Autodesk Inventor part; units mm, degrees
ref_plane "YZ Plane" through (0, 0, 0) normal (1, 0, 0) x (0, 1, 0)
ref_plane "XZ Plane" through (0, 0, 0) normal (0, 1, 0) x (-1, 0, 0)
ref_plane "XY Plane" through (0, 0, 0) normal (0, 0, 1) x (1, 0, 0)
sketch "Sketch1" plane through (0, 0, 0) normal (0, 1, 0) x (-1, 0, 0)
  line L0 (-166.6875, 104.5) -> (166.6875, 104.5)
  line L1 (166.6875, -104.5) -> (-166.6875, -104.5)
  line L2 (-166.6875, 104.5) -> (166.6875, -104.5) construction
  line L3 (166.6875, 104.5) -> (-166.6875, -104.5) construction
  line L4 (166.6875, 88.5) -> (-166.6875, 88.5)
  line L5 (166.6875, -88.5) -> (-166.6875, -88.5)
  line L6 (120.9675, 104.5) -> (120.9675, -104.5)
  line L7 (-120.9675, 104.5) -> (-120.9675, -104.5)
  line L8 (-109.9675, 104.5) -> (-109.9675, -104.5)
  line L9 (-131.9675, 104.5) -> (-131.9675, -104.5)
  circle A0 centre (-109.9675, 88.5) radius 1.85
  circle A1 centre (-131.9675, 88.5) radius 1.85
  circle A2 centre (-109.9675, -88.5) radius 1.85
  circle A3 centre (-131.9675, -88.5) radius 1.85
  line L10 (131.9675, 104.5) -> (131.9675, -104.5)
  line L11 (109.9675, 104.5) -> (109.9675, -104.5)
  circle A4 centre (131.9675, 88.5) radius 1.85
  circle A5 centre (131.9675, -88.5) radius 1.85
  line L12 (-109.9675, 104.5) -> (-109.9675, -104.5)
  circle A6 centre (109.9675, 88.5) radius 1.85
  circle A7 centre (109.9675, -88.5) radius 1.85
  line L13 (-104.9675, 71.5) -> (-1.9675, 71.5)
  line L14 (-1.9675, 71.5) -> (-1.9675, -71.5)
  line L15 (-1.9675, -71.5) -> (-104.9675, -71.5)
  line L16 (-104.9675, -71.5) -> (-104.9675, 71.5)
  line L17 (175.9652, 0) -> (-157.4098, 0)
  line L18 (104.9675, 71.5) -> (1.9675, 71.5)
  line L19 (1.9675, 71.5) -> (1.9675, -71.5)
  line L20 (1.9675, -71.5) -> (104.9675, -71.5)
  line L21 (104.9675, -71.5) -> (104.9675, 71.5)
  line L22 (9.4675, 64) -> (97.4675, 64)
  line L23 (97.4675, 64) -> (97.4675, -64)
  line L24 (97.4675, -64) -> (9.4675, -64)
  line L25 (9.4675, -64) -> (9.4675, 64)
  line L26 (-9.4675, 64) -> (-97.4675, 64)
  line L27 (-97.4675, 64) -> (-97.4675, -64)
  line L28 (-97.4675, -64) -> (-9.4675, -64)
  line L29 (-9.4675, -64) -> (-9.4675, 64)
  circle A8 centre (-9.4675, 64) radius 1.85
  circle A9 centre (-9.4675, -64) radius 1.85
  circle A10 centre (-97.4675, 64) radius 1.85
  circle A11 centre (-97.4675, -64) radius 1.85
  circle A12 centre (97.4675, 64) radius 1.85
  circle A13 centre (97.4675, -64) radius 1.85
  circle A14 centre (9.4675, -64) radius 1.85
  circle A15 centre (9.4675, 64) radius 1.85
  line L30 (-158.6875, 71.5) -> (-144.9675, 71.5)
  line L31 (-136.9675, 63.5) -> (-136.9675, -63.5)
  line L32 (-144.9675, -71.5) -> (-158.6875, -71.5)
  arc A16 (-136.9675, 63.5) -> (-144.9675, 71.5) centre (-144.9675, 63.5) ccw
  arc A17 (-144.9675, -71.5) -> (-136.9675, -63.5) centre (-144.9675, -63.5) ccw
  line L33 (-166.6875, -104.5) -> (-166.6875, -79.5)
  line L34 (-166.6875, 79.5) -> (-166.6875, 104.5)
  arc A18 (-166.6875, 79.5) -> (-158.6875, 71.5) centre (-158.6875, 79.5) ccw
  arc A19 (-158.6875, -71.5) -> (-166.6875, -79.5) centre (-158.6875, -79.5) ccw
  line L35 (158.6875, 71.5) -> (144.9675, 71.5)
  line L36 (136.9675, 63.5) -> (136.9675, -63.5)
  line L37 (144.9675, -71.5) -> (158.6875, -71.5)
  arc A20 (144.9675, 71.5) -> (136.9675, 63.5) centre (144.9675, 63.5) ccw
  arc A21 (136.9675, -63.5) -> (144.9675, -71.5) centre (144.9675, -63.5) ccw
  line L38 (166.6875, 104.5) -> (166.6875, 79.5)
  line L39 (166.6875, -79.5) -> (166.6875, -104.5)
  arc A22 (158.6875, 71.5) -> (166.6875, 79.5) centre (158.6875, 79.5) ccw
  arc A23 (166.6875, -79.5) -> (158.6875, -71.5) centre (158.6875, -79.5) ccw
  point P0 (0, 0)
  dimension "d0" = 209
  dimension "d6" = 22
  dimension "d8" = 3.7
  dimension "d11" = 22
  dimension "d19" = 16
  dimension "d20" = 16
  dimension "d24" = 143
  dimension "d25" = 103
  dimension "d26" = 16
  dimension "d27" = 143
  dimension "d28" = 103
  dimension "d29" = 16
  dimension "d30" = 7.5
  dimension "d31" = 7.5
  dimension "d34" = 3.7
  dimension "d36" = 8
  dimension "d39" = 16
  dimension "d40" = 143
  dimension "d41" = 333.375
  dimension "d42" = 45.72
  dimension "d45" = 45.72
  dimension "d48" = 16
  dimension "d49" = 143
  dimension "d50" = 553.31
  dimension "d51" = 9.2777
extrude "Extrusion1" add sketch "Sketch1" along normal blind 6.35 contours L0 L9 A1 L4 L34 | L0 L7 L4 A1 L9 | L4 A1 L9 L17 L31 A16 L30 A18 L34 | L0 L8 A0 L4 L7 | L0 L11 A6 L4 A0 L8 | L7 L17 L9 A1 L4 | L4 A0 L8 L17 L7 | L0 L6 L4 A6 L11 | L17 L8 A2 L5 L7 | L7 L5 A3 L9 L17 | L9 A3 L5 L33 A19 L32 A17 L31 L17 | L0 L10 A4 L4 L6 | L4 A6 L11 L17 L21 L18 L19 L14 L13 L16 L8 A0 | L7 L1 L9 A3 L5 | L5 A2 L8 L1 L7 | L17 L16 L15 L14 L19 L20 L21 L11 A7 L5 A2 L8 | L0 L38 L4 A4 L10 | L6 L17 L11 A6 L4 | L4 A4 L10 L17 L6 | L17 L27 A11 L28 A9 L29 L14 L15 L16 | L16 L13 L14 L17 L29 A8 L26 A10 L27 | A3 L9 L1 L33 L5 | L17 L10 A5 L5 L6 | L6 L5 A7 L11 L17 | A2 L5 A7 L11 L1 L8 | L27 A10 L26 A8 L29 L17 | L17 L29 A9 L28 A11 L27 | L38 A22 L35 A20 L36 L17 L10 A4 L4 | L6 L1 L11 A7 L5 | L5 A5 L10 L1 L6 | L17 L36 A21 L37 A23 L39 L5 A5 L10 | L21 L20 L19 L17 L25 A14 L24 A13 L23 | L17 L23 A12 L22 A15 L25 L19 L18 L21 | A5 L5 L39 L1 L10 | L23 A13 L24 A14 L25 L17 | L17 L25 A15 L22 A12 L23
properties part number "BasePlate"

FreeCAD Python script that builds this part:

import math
import FreeCAD as App
import Part
import Sketcher
from FreeCAD import Vector
Q = App.Units.Quantity

doc = App.newDocument("Part")
body = doc.addObject("PartDesign::Body", "Body")

# Sketch on XZ plane
sketch1 = doc.addObject("Sketcher::SketchObject", "Sketch")
body.addObject(sketch1)
sketch1.AttachmentSupport = (doc.XZ_Plane, [""])
sketch1.MapMode = "FlatFace"
sketch1.addGeometry(Part.LineSegment(Vector(166.7, 104.5, 0), Vector(166.7, 79.5, 0)), False)
sketch1.addGeometry(Part.ArcOfCircle(Part.Circle(Vector(158.7, 79.5, 0), Vector(0, 0, 1), 8), math.radians(-90), math.radians(0)), False)
sketch1.addGeometry(Part.LineSegment(Vector(158.7, 71.5, 0), Vector(145, 71.5, 0)), False)
sketch1.addGeometry(Part.ArcOfCircle(Part.Circle(Vector(145, 63.5, 0), Vector(0, 0, 1), 8), math.radians(90), math.radians(180)), False)
sketch1.addGeometry(Part.LineSegment(Vector(137, 63.5, 0), Vector(137, -63.5, 0)), False)
sketch1.addGeometry(Part.ArcOfCircle(Part.Circle(Vector(145, -63.5, 0), Vector(0, 0, 1), 8), math.radians(180), math.radians(270)), False)
sketch1.addGeometry(Part.LineSegment(Vector(145, -71.5, 0), Vector(158.7, -71.5, 0)), False)
sketch1.addGeometry(Part.ArcOfCircle(Part.Circle(Vector(158.7, -79.5, 0), Vector(0, 0, 1), 8), math.radians(0), math.radians(90)), False)
sketch1.addGeometry(Part.LineSegment(Vector(166.7, -79.5, 0), Vector(166.7, -104.5, 0)), False)
sketch1.addGeometry(Part.LineSegment(Vector(166.7, -104.5, 0), Vector(-166.7, -104.5, 0)), False)
sketch1.addGeometry(Part.LineSegment(Vector(-166.7, -104.5, 0), Vector(-166.7, -79.5, 0)), False)
sketch1.addGeometry(Part.ArcOfCircle(Part.Circle(Vector(-158.7, -79.5, 0), Vector(0, 0, 1), 8), math.radians(90), math.radians(180)), False)
sketch1.addGeometry(Part.LineSegment(Vector(-158.7, -71.5, 0), Vector(-145, -71.5, 0)), False)
sketch1.addGeometry(Part.ArcOfCircle(Part.Circle(Vector(-145, -63.5, 0), Vector(0, 0, 1), 8), math.radians(-90), math.radians(0)), False)
sketch1.addGeometry(Part.LineSegment(Vector(-137, -63.5, 0), Vector(-137, 63.5, 0)), False)
sketch1.addGeometry(Part.ArcOfCircle(Part.Circle(Vector(-145, 63.5, 0), Vector(0, 0, 1), 8), math.radians(0), math.radians(90)), False)
sketch1.addGeometry(Part.LineSegment(Vector(-145, 71.5, 0), Vector(-158.7, 71.5, 0)), False)
sketch1.addGeometry(Part.ArcOfCircle(Part.Circle(Vector(-158.7, 79.5, 0), Vector(0, 0, 1), 8), math.radians(180), math.radians(270)), False)
sketch1.addGeometry(Part.LineSegment(Vector(-166.7, 79.5, 0), Vector(-166.7, 104.5, 0)), False)
sketch1.addGeometry(Part.LineSegment(Vector(-166.7, 104.5, 0), Vector(166.7, 104.5, 0)), False)
sketch1.addGeometry(Part.Circle(Vector(132, 88.5, 0), Vector(0, 0, 1), 1.9), False)
sketch1.addGeometry(Part.Circle(Vector(110, 88.5, 0), Vector(0, 0, 1), 1.9), False)
sketch1.addGeometry(Part.Circle(Vector(132, -88.5, 0), Vector(0, 0, 1), 1.9), False)
sketch1.addGeometry(Part.Circle(Vector(-110, 88.5, 0), Vector(0, 0, 1), 1.9), False)
sketch1.addGeometry(Part.Circle(Vector(110, -88.5, 0), Vector(0, 0, 1), 1.9), False)
sketch1.addGeometry(Part.Circle(Vector(-132, 88.5, 0), Vector(0, 0, 1), 1.9), False)
sketch1.addGeometry(Part.Circle(Vector(-110, -88.5, 0), Vector(0, 0, 1), 1.9), False)
sketch1.addGeometry(Part.Circle(Vector(-97.5, 64, 0), Vector(0, 0, 1), 1.9), False)
sketch1.addGeometry(Part.Circle(Vector(-9.5, 64, 0), Vector(0, 0, 1), 1.9), False)
sketch1.addGeometry(Part.Circle(Vector(97.5, 64, 0), Vector(0, 0, 1), 1.9), False)
sketch1.addGeometry(Part.Circle(Vector(9.5, 64, 0), Vector(0, 0, 1), 1.9), False)
sketch1.addGeometry(Part.Circle(Vector(97.5, -64, 0), Vector(0, 0, 1), 1.9), False)
sketch1.addGeometry(Part.Circle(Vector(9.5, -64, 0), Vector(0, 0, 1), 1.9), False)
sketch1.addGeometry(Part.Circle(Vector(-97.5, -64, 0), Vector(0, 0, 1), 1.9), False)
sketch1.addGeometry(Part.Circle(Vector(-9.5, -64, 0), Vector(0, 0, 1), 1.9), False)
sketch1.addGeometry(Part.Circle(Vector(-132, -88.5, 0), Vector(0, 0, 1), 1.9), False)
sketch1.addConstraint(Sketcher.Constraint("Tangent", 0, 2, 1, 2))
sketch1.addConstraint(Sketcher.Constraint("Tangent", 1, 1, 2, 1))
sketch1.addConstraint(Sketcher.Constraint("Tangent", 2, 2, 3, 1))
sketch1.addConstraint(Sketcher.Constraint("Tangent", 3, 2, 4, 1))
sketch1.addConstraint(Sketcher.Constraint("Tangent", 4, 2, 5, 1))
sketch1.addConstraint(Sketcher.Constraint("Tangent", 5, 2, 6, 1))
sketch1.addConstraint(Sketcher.Constraint("Tangent", 6, 2, 7, 2))
sketch1.addConstraint(Sketcher.Constraint("Tangent", 7, 1, 8, 1))
sketch1.addConstraint(Sketcher.Constraint("Coincident", 8, 2, 9, 1))
sketch1.addConstraint(Sketcher.Constraint("Coincident", 9, 2, 10, 1))
sketch1.addConstraint(Sketcher.Constraint("Tangent", 10, 2, 11, 2))
sketch1.addConstraint(Sketcher.Constraint("Tangent", 11, 1, 12, 1))
sketch1.addConstraint(Sketcher.Constraint("Tangent", 12, 2, 13, 1))
sketch1.addConstraint(Sketcher.Constraint("Tangent", 13, 2, 14, 1))
sketch1.addConstraint(Sketcher.Constraint("Tangent", 14, 2, 15, 1))
sketch1.addConstraint(Sketcher.Constraint("Tangent", 15, 2, 16, 1))
sketch1.addConstraint(Sketcher.Constraint("Tangent", 16, 2, 17, 2))
sketch1.addConstraint(Sketcher.Constraint("Tangent", 17, 1, 18, 1))
sketch1.addConstraint(Sketcher.Constraint("Coincident", 18, 2, 19, 1))
sketch1.addConstraint(Sketcher.Constraint("Coincident", 19, 2, 0, 1))
sketch1.addConstraint(Sketcher.Constraint("Vertical", 0))
sketch1.addConstraint(Sketcher.Constraint("Horizontal", 2))
sketch1.addConstraint(Sketcher.Constraint("Vertical", 4))
sketch1.addConstraint(Sketcher.Constraint("Horizontal", 6))
sketch1.addConstraint(Sketcher.Constraint("Vertical", 8))
sketch1.addConstraint(Sketcher.Constraint("Horizontal", 9))
sketch1.addConstraint(Sketcher.Constraint("Vertical", 10))
sketch1.addConstraint(Sketcher.Constraint("Horizontal", 12))
sketch1.addConstraint(Sketcher.Constraint("Vertical", 14))
sketch1.addConstraint(Sketcher.Constraint("Horizontal", 16))
sketch1.addConstraint(Sketcher.Constraint("Vertical", 18))
sketch1.addConstraint(Sketcher.Constraint("Horizontal", 19))
sketch1.addConstraint(Sketcher.Constraint("Equal", 1, 3))
sketch1.addConstraint(Sketcher.Constraint("Equal", 3, 5))
sketch1.addConstraint(Sketcher.Constraint("Equal", 5, 7))
sketch1.addConstraint(Sketcher.Constraint("Equal", 7, 11))
sketch1.addConstraint(Sketcher.Constraint("Equal", 11, 13))
sketch1.addConstraint(Sketcher.Constraint("Equal", 13, 15))
sketch1.addConstraint(Sketcher.Constraint("Equal", 15, 17))
sketch1.addConstraint(Sketcher.Constraint("Equal", 20, 21))
sketch1.addConstraint(Sketcher.Constraint("Equal", 21, 22))
sketch1.addConstraint(Sketcher.Constraint("Equal", 22, 23))
sketch1.addConstraint(Sketcher.Constraint("Equal", 23, 24))
sketch1.addConstraint(Sketcher.Constraint("Equal", 24, 25))
sketch1.addConstraint(Sketcher.Constraint("Equal", 25, 26))
sketch1.addConstraint(Sketcher.Constraint("Equal", 26, 27))
sketch1.addConstraint(Sketcher.Constraint("Equal", 27, 28))
sketch1.addConstraint(Sketcher.Constraint("Equal", 28, 29))
sketch1.addConstraint(Sketcher.Constraint("Equal", 29, 30))
sketch1.addConstraint(Sketcher.Constraint("Equal", 30, 31))
sketch1.addConstraint(Sketcher.Constraint("Equal", 31, 32))
sketch1.addConstraint(Sketcher.Constraint("Equal", 32, 33))
sketch1.addConstraint(Sketcher.Constraint("Equal", 33, 34))
sketch1.addConstraint(Sketcher.Constraint("Equal", 34, 35))
sketch1.addConstraint(Sketcher.Constraint("Symmetric", 1, 3, 11, 3, -1, 1))
sketch1.addConstraint(Sketcher.Constraint("Symmetric", 5, 3, 15, 3, -1, 1))
sketch1.addConstraint(Sketcher.Constraint("Symmetric", 23, 3, 24, 3, -1, 1))
sketch1.addConstraint(Sketcher.Constraint("Symmetric", 22, 3, 25, 3, -1, 1))
sketch1.addConstraint(Sketcher.Constraint("Symmetric", 21, 3, 26, 3, -1, 1))
sketch1.addConstraint(Sketcher.Constraint("Symmetric", 27, 3, 31, 3, -1, 1))
sketch1.addConstraint(Sketcher.Constraint("Symmetric", 28, 3, 32, 3, -1, 1))
sketch1.addConstraint(Sketcher.Constraint("Symmetric", 29, 3, 33, 3, -1, 1))
sketch1.addConstraint(Sketcher.Constraint("Symmetric", 30, 3, 34, 3, -1, 1))
sketch1.addConstraint(Sketcher.Constraint("Symmetric", 20, 3, 35, 3, -1, 1))
sketch1.addConstraint(Sketcher.Constraint("Symmetric", 8, 2, 18, 2, -1, 1))
sketch1.addConstraint(Sketcher.Constraint("Symmetric", 7, 3, 11, 3, -2))
sketch1.addConstraint(Sketcher.Constraint("Symmetric", 21, 3, 23, 3, -2))
sketch1.addConstraint(Sketcher.Constraint("Symmetric", 20, 3, 25, 3, -2))
sketch1.addConstraint(Sketcher.Constraint("Symmetric", 27, 3, 29, 3, -2))
sketch1.addConstraint(Sketcher.Constraint("Symmetric", 28, 3, 30, 3, -2))
sketch1.addConstraint(Sketcher.Constraint("Horizontal", 20, 3, 21, 3))
sketch1.addConstraint(Sketcher.Constraint("Horizontal", 27, 3, 28, 3))
sketch1.addConstraint(Sketcher.Constraint("Radius", 1, Q("8 mm")))
sketch1.addConstraint(Sketcher.Constraint("Diameter", 20, Q("3.7 mm")))
sketch1.addConstraint(Sketcher.Constraint("DistanceY", 5, 3, 1, 3, Q("143 mm")))
sketch1.addConstraint(Sketcher.Constraint("DistanceX", 21, 3, 20, 3, Q("22 mm")))
sketch1.addConstraint(Sketcher.Constraint("DistanceY", 8, 2, 22, 3, Q("16 mm")))
sketch1.addConstraint(Sketcher.Constraint("DistanceX", 9, 2, 9, 1, Q("333.375 mm")))
sketch1.addConstraint(Sketcher.Constraint("DistanceY", 0, 2, 0, 1, Q("25 mm")))
sketch1.addConstraint(Sketcher.Constraint("DistanceY", -1, 1, 27, 3, Q("64 mm")))
sketch1.addConstraint(Sketcher.Constraint("DistanceX", 20, 3, 3, 3, Q("13 mm")))
sketch1.addConstraint(Sketcher.Constraint("DistanceX", 27, 3, 28, 3, Q("88 mm")))
sketch1.addConstraint(Sketcher.Constraint("DistanceX", 2, 2, 2, 1, Q("13.72 mm")))
sketch1.addConstraint(Sketcher.Constraint("DistanceX", 23, 3, 27, 3, Q("12.5 mm")))
pad1 = doc.addObject("PartDesign::Pad", "Pad")
body.addObject(pad1)
pad1.Profile = sketch1
pad1.Length = 6.35
pad1.Reversed = True

doc.recompute()
